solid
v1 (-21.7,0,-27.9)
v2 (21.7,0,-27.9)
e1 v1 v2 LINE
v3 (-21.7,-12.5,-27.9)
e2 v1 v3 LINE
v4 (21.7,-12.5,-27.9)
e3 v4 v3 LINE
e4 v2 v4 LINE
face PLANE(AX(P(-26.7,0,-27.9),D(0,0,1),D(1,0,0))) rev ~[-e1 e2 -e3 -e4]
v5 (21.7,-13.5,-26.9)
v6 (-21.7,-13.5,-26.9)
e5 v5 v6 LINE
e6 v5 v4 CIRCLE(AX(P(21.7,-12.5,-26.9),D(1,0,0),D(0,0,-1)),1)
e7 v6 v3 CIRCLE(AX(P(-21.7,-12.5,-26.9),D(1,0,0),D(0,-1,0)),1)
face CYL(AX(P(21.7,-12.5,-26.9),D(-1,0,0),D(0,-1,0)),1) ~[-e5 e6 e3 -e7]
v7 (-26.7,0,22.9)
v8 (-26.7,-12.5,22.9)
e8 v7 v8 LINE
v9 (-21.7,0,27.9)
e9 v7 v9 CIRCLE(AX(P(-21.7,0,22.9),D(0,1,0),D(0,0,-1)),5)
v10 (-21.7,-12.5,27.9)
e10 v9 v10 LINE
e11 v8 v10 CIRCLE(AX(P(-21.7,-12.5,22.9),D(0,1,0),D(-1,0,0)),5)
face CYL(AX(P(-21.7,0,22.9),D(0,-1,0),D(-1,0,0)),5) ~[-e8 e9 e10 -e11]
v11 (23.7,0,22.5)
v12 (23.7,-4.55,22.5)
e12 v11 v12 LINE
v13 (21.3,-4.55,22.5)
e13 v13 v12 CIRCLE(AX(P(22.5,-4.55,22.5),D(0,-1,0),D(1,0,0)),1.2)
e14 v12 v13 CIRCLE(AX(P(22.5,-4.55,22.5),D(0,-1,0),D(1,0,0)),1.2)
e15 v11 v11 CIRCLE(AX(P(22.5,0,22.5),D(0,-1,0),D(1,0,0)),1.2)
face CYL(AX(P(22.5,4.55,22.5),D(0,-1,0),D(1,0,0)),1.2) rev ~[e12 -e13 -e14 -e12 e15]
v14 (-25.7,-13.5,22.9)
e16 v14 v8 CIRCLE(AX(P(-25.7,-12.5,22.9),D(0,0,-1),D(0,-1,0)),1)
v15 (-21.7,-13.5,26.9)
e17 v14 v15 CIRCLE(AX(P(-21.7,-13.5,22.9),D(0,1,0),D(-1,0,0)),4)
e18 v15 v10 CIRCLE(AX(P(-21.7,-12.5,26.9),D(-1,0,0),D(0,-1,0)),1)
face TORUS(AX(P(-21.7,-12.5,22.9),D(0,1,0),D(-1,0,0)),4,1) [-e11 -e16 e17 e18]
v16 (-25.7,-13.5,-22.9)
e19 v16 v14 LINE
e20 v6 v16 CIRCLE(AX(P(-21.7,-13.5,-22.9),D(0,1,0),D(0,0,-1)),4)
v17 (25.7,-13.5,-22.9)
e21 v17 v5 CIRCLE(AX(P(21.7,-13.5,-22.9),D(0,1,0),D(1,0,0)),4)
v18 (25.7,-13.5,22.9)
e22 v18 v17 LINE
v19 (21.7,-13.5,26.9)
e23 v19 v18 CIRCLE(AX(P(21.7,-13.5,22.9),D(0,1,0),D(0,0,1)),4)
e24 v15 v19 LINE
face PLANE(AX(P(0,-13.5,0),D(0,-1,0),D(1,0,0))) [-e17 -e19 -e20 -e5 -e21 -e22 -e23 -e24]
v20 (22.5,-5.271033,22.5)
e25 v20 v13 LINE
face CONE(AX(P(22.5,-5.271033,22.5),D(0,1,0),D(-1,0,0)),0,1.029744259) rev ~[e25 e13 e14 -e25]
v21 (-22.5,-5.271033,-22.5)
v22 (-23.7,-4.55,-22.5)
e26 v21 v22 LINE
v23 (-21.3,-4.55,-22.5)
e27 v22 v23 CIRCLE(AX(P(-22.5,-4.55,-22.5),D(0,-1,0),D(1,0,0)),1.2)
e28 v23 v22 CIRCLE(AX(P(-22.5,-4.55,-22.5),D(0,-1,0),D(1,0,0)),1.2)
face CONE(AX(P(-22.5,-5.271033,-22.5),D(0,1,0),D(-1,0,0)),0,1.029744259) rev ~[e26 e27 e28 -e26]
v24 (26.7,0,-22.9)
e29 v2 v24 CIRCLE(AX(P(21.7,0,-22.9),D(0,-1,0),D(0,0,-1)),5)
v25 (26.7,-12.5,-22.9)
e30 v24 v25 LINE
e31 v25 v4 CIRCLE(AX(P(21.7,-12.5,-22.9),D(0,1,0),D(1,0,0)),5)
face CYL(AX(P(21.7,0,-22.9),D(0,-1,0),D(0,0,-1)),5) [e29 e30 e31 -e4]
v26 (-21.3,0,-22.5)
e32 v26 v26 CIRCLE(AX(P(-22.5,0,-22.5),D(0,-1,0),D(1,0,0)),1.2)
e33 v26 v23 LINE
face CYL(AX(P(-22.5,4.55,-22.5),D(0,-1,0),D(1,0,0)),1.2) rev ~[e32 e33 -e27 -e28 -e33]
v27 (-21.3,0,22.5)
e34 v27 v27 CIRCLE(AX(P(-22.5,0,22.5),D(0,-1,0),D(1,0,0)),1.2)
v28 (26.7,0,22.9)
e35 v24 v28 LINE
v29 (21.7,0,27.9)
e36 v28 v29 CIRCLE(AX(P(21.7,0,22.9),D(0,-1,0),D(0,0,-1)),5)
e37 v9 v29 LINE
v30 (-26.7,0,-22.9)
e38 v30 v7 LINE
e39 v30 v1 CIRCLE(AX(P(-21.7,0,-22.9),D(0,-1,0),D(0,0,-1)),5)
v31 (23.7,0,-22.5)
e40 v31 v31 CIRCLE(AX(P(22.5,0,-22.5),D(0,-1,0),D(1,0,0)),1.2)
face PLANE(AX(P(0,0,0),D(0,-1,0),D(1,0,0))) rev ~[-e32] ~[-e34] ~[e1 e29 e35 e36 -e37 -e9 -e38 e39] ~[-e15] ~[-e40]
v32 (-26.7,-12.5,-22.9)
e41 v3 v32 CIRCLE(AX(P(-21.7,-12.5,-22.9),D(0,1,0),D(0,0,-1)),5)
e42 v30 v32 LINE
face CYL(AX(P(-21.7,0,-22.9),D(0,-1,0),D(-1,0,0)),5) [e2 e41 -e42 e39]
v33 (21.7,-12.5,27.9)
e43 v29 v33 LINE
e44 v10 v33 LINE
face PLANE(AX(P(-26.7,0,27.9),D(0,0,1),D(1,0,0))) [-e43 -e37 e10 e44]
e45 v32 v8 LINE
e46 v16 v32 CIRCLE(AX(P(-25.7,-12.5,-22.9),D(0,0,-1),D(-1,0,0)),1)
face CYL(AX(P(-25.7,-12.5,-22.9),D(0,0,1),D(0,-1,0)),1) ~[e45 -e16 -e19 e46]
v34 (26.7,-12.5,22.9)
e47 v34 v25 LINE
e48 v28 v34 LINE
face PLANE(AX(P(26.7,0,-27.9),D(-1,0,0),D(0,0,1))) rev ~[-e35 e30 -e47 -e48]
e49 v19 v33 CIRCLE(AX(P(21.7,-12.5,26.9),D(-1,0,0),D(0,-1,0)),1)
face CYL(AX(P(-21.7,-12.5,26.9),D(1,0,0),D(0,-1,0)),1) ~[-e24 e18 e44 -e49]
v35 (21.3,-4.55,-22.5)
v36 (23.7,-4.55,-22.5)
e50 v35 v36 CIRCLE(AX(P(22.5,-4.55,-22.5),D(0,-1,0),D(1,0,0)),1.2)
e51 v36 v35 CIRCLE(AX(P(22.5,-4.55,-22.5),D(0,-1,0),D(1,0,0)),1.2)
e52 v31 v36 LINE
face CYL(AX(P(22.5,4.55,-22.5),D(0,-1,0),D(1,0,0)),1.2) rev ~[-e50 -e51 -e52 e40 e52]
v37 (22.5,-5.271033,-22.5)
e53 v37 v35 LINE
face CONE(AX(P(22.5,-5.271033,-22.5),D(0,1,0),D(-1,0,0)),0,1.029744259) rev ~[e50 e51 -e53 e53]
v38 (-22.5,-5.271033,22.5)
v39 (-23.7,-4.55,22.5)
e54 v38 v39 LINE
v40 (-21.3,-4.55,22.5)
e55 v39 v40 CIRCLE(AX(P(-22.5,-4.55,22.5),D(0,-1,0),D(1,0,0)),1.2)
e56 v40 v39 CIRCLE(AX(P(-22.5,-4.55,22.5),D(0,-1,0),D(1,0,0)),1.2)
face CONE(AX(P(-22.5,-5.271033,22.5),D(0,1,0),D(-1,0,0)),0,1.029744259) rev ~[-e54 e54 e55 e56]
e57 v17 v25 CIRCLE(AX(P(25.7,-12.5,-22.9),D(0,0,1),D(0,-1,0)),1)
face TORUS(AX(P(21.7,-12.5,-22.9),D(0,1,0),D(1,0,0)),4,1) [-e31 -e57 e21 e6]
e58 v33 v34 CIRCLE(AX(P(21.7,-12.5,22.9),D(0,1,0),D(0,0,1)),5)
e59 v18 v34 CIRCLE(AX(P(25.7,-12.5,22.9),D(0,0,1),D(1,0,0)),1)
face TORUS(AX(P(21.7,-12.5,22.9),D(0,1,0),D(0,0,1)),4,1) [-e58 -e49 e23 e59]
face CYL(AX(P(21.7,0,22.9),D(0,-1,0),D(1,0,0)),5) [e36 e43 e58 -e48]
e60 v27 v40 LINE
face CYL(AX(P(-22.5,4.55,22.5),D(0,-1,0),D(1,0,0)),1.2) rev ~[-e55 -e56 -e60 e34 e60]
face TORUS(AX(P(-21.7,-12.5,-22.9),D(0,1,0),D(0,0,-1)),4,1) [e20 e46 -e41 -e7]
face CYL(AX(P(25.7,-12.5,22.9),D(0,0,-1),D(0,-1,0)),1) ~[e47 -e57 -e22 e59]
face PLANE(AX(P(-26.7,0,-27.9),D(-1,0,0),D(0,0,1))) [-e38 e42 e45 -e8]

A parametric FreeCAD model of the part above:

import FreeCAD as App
import Part
import Sketcher

V = App.Vector
Q = App.Units.Quantity


def edges_at(feature, points):
    """Names of the edges that pass closest to the given points."""
    edges = feature.Shape.Edges
    near = lambda p: min(range(len(edges)), key=lambda i: edges[i].distToShape(Part.Vertex(*p))[0])
    return sorted({f"Edge{near(p) + 1}" for p in points})


def add_polygon(sketch, points):
    """Adds a closed chain of lines whose ends are joined by coincident constraints."""
    first, n = sketch.GeometryCount, len(points)
    for a, b in zip(points, points[1:] + points[:1]):
        sketch.addGeometry(Part.LineSegment(App.Vector(*a, 0), App.Vector(*b, 0)), False)
    for i in range(n):
        sketch.addConstraint(Sketcher.Constraint("Coincident", first + i, 2, first + (i + 1) % n, 1))

doc = App.newDocument("Part")
body = doc.addObject("PartDesign::Body", "Body")

# Sketch on XZ plane
sketch1 = body.newObject("Sketcher::SketchObject", "Sketch")
sketch1.AttachmentSupport = (doc.getObject("XZ_Plane"), [""])
sketch1.MapMode = "FlatFace"
add_polygon(sketch1, [(-27, 28), (-27, -28), (27, -28), (27, 28)])  # lines 0-3
sketch1.addConstraint([
    Sketcher.Constraint("Vertical", 0),
    Sketcher.Constraint("Horizontal", 1),
    Sketcher.Constraint("Vertical", 2),
    Sketcher.Constraint("Horizontal", 3),
    Sketcher.Constraint("Symmetric", 0, 2, 2, 2, -1, 1),
    Sketcher.Constraint("DistanceX", 1, 1, 1, 2, Q("53.4 mm")),
    Sketcher.Constraint("DistanceY", 0, 2, 0, 1, Q("55.8 mm")),
])
pad1 = body.newObject("PartDesign::Pad", "Pad")
pad1.Profile = sketch1
pad1.Length = 13.5
doc.recompute()

fillet = body.newObject("PartDesign::Fillet", "Fillet")
fillet.Base = (pad1, edges_at(pad1, [
    (-26.7, -6.75, 27.9),
    (26.7, -6.75, 27.9),
    (26.7, -6.75, -27.9),
    (-26.7, -6.75, -27.9),
]))
fillet.Radius = 5
doc.recompute()

fillet2 = body.newObject("PartDesign::Fillet", "Fillet001")
fillet2.Base = (fillet, edges_at(fillet, [(0, -13.5, 27.9)]))
fillet2.Radius = 1

# Sketch on XZ plane
sketch2 = body.newObject("Sketcher::SketchObject", "Sketch001")
sketch2.AttachmentSupport = (doc.getObject("XZ_Plane"), [""])
sketch2.MapMode = "FlatFace"
sketch2.addGeometry([
    Part.Circle(V(22.5, 22.5, 0), V(0, 0, 1), 1.2),
    Part.Circle(V(-22.5, 22.5, 0), V(0, 0, 1), 1.2),
    Part.Circle(V(-22.5, -22.5, 0), V(0, 0, 1), 1.2),
    Part.Circle(V(22.5, -22.5, 0), V(0, 0, 1), 1.2),
], False)
sketch2.addConstraint([
    Sketcher.Constraint("Equal", 0, 1),
    Sketcher.Constraint("Equal", 1, 2),
    Sketcher.Constraint("Equal", 2, 3),
    Sketcher.Constraint("Symmetric", 0, 3, 2, 3, -1, 1),
    Sketcher.Constraint("Symmetric", 1, 3, 3, 3, -1, 1),
    Sketcher.Constraint("Symmetric", 0, 3, 1, 3, -2),
    Sketcher.Constraint("Diameter", 0, Q("2.4 mm")),
    Sketcher.Constraint("DistanceX", 1, 3, 0, 3, Q("45 mm")),
    Sketcher.Constraint("DistanceY", 2, 3, 1, 3, Q("45 mm")),
])
doc.recompute()
hole = body.newObject("PartDesign::Hole", "Hole")
hole.Profile = sketch2
hole.ThreadType = "None"
hole.Diameter = 2.4
hole.DepthType = "Dimension"
hole.Depth = 4.55
hole.DrillPoint = "Angled"
hole.DrillPointAngle = 118
hole.Reversed = True

doc.recompute()
